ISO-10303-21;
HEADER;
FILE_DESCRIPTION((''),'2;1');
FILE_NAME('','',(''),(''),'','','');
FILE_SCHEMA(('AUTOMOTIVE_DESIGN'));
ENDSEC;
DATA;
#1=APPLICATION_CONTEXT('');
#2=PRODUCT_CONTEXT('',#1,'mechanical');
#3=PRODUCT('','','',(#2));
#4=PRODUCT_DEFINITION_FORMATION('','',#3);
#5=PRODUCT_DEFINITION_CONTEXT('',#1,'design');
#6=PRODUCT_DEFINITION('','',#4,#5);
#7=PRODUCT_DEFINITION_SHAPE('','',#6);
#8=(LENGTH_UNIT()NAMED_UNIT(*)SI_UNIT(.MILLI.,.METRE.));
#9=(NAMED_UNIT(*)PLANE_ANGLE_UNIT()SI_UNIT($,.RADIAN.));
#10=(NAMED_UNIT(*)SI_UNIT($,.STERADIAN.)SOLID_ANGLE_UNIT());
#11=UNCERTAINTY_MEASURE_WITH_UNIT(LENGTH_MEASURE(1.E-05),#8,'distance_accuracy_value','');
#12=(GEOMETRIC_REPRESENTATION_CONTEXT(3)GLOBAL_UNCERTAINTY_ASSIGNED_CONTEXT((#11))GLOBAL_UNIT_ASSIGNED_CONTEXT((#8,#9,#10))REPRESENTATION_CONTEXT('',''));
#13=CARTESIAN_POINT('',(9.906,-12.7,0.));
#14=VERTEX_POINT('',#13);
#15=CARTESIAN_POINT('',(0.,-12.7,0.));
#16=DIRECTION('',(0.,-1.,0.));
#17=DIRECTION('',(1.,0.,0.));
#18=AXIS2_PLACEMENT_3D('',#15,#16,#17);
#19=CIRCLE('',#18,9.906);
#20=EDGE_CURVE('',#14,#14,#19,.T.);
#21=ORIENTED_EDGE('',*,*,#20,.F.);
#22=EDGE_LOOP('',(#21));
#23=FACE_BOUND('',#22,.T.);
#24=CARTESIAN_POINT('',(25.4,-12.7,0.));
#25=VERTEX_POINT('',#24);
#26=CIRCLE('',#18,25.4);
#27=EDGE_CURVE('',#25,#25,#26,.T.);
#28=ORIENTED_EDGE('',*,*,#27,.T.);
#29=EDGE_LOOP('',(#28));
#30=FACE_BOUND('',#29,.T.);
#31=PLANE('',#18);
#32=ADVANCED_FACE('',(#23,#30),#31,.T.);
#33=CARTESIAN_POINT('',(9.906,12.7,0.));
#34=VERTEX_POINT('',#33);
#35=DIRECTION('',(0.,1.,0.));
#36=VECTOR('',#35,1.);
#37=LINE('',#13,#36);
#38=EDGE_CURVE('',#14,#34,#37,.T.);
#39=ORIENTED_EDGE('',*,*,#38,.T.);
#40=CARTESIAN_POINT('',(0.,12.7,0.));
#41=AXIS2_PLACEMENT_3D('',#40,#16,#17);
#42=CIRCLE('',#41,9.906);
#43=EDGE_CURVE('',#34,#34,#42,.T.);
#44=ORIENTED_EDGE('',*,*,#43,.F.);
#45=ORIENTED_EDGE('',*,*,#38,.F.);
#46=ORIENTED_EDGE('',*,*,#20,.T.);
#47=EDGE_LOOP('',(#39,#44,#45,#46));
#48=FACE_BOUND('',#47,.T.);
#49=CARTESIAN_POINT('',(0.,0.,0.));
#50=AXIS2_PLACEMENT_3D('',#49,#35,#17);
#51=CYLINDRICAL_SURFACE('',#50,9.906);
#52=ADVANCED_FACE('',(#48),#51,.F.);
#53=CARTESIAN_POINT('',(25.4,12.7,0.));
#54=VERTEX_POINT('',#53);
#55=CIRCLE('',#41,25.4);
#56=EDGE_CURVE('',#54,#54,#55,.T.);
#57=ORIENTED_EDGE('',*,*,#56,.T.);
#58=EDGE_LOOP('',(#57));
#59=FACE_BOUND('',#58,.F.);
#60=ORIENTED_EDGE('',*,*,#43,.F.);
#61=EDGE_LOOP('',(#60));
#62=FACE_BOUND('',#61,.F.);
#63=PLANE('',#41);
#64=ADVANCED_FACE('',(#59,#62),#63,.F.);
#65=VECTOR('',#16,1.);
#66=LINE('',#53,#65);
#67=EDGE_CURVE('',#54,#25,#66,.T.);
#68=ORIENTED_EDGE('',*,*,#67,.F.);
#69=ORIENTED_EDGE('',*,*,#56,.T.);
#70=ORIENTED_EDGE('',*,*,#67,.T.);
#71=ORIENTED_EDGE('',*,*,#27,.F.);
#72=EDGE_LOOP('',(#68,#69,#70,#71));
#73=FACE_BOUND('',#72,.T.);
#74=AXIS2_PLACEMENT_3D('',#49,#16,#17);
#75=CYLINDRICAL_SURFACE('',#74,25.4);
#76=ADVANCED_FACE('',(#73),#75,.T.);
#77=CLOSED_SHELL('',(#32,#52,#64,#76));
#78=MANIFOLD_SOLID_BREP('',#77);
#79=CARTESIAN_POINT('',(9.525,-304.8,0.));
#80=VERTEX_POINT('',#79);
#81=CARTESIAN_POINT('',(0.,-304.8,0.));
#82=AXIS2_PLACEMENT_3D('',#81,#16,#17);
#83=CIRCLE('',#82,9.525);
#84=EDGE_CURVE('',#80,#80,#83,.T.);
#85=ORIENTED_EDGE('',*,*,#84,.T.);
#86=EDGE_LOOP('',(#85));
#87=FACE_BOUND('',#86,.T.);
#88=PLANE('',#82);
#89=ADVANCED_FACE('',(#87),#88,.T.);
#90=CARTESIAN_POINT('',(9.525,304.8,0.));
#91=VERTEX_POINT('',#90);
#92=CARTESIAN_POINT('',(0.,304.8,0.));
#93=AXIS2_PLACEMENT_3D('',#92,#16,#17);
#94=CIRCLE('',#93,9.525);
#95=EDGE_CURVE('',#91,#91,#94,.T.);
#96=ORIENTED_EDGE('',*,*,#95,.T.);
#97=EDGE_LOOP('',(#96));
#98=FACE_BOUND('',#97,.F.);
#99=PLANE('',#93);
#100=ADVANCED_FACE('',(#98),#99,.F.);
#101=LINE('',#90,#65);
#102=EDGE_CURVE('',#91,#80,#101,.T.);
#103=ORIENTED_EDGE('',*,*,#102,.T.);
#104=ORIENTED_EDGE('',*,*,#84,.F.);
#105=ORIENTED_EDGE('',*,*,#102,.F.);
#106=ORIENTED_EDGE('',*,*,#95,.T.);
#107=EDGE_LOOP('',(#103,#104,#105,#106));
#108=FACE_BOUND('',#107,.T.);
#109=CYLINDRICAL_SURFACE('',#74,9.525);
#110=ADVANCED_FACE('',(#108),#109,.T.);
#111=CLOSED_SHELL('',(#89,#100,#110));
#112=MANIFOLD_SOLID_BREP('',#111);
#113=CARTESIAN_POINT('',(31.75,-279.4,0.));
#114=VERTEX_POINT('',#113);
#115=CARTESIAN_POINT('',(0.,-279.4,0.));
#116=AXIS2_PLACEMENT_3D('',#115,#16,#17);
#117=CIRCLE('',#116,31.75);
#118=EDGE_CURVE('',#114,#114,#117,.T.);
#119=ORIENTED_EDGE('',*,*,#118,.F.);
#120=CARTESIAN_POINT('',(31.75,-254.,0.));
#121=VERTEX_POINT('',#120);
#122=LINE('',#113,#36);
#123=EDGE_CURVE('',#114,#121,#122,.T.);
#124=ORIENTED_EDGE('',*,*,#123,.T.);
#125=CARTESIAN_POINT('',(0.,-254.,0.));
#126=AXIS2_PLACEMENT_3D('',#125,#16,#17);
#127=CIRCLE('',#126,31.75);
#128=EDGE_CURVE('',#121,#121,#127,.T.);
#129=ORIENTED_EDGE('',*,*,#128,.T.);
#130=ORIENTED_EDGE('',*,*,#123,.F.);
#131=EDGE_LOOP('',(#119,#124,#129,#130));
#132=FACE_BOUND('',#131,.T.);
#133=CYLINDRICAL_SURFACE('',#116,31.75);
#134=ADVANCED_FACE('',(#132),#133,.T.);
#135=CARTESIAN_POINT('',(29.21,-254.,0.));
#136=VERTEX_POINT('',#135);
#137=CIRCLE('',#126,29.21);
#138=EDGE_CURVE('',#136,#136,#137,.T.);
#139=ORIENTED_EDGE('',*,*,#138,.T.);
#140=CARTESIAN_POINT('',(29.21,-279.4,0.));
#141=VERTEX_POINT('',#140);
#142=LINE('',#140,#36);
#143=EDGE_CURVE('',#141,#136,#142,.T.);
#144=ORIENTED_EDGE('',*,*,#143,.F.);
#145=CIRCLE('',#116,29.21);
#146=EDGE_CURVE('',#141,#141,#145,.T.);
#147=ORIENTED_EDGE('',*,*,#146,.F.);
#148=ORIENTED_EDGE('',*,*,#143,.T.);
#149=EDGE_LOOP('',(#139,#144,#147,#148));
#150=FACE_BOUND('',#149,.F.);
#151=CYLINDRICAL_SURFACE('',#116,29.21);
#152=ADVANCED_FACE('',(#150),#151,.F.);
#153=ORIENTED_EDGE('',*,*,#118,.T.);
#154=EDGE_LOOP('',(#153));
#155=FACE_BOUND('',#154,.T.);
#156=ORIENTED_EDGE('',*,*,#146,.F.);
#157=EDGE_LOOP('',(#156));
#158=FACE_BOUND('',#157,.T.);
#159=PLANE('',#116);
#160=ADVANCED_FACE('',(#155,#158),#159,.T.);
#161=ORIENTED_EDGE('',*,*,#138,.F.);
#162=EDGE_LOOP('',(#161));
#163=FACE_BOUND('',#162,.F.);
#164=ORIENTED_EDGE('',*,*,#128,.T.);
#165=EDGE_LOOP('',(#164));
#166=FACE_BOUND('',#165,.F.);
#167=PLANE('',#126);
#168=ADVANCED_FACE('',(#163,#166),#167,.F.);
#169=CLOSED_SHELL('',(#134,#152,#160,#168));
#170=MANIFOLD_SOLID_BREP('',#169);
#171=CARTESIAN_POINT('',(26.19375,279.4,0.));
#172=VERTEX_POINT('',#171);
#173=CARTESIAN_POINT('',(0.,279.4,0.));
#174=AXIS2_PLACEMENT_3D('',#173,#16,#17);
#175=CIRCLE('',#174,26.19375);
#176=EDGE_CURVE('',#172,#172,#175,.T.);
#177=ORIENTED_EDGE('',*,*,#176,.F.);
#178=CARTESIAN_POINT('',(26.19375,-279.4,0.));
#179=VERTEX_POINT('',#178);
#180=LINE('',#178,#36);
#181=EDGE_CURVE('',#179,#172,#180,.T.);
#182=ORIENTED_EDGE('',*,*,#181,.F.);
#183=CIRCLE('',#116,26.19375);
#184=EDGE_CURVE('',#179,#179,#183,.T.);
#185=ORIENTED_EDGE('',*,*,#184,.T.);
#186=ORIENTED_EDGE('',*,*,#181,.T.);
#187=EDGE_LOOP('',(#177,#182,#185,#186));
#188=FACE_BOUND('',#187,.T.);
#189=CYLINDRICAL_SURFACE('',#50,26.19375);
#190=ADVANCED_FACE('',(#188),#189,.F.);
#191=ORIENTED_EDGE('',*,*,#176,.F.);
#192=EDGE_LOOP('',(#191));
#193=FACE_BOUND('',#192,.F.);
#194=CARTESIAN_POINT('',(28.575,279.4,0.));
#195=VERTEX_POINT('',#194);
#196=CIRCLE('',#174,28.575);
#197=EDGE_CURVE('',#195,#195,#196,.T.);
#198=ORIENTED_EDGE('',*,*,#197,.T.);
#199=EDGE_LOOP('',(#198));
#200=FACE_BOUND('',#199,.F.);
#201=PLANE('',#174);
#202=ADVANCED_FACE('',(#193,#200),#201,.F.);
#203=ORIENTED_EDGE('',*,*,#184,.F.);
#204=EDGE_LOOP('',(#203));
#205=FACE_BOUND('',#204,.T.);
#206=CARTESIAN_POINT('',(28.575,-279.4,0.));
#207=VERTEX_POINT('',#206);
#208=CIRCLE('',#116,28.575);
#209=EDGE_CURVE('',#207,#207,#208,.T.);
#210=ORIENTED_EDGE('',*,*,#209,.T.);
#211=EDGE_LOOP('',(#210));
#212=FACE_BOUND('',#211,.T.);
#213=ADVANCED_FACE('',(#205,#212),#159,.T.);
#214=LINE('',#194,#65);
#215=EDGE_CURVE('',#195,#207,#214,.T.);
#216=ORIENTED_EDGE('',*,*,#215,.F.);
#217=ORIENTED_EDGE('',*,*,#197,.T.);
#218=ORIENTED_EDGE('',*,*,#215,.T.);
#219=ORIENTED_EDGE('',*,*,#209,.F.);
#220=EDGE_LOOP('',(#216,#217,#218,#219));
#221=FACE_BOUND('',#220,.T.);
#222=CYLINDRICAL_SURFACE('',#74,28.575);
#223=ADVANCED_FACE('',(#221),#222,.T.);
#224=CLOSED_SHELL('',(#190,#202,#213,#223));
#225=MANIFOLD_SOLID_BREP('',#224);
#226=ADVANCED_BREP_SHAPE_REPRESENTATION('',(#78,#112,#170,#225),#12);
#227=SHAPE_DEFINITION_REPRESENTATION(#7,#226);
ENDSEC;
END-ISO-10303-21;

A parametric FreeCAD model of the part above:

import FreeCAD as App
import Part
import Sketcher
Q = App.Units.Quantity

doc = App.newDocument("Part")
body = doc.addObject("PartDesign::Body", "Body")

sketch1 = body.newObject("Sketcher::SketchObject", "Sketch")
sketch1.AttachmentSupport = (doc.getObject("XZ_Plane"), [""])
sketch1.MapMode = "FlatFace"
sketch1.addGeometry(Part.Circle(App.Vector(0, 0, 0), App.Vector(0, 0, 1), 10), False)
sketch1.addConstraint([
    Sketcher.Constraint("Coincident", 0, 3, -1, 1),
    Sketcher.Constraint("Diameter", 0, Q("0.75 in")),
])
pad1 = body.newObject("PartDesign::Pad", "Pad")
pad1.Profile = sketch1
pad1.Length = Q("24 in")
pad1.Midplane = True
body2 = doc.addObject("PartDesign::Body", "Body001")

sketch2 = body2.newObject("Sketcher::SketchObject", "Sketch001")
sketch2.AttachmentSupport = (doc.getObject("XZ_Plane001"), [""])
sketch2.MapMode = "FlatFace"
sketch2.addGeometry([
    Part.Circle(App.Vector(0, 0, 0), App.Vector(0, 0, 1), 25),
    Part.Circle(App.Vector(0, 0, 0), App.Vector(0, 0, 1), 10),
], False)
sketch2.addConstraint([
    Sketcher.Constraint("Coincident", 0, 3, -1, 1),
    Sketcher.Constraint("Coincident", 1, 3, -1, 1),
    Sketcher.Constraint("Diameter", 0, Q("2 in")),
    Sketcher.Constraint("Diameter", 1, Q("0.78 in")),
])
pad2 = body2.newObject("PartDesign::Pad", "Pad001")
pad2.Profile = sketch2
pad2.Length = Q("1 in")
pad2.Midplane = True
body3 = doc.addObject("PartDesign::Body", "Body002")

sketch3 = body3.newObject("Sketcher::SketchObject", "Sketch002")
sketch3.AttachmentSupport = (doc.getObject("XZ_Plane002"), [""])
sketch3.MapMode = "FlatFace"
sketch3.addGeometry([
    Part.Circle(App.Vector(0, 0, 0), App.Vector(0, 0, 1), 29),
    Part.Circle(App.Vector(0, 0, 0), App.Vector(0, 0, 1), 26),
], False)
sketch3.addConstraint([
    Sketcher.Constraint("Coincident", 0, 3, -1, 1),
    Sketcher.Constraint("Coincident", 1, 3, -1, 1),
    Sketcher.Constraint("Diameter", 0, Q("2.25 in")),
    Sketcher.Constraint("Diameter", 1, Q("2.0625 in")),
])
pad3 = body3.newObject("PartDesign::Pad", "Pad002")
pad3.Profile = sketch3
pad3.Length = Q("22 in")
pad3.Midplane = True
body4 = doc.addObject("PartDesign::Body", "Body003")

sketch4 = body4.newObject("Sketcher::SketchObject", "Sketch003")
sketch4.AttachmentSupport = (doc.getObject("XZ_Plane003"), [""])
sketch4.MapMode = "FlatFace"
sketch4.AttachmentOffset = App.Placement(App.Vector(0, 0, 11 * 25.4), App.Rotation())
sketch4.addGeometry([
    Part.Circle(App.Vector(0, 0, 0), App.Vector(0, 0, 1), 32),
    Part.Circle(App.Vector(0, 0, 0), App.Vector(0, 0, 1), 29),
], False)
sketch4.addConstraint([
    Sketcher.Constraint("Coincident", 0, 3, -1, 1),
    Sketcher.Constraint("Coincident", 1, 3, -1, 1),
    Sketcher.Constraint("Diameter", 0, Q("2.5 in")),
    Sketcher.Constraint("Diameter", 1, Q("2.3 in")),
])
pad4 = body4.newObject("PartDesign::Pad", "Pad003")
pad4.Profile = sketch4
pad4.Length = Q("1 in")
pad4.Reversed = True

doc.recompute()
